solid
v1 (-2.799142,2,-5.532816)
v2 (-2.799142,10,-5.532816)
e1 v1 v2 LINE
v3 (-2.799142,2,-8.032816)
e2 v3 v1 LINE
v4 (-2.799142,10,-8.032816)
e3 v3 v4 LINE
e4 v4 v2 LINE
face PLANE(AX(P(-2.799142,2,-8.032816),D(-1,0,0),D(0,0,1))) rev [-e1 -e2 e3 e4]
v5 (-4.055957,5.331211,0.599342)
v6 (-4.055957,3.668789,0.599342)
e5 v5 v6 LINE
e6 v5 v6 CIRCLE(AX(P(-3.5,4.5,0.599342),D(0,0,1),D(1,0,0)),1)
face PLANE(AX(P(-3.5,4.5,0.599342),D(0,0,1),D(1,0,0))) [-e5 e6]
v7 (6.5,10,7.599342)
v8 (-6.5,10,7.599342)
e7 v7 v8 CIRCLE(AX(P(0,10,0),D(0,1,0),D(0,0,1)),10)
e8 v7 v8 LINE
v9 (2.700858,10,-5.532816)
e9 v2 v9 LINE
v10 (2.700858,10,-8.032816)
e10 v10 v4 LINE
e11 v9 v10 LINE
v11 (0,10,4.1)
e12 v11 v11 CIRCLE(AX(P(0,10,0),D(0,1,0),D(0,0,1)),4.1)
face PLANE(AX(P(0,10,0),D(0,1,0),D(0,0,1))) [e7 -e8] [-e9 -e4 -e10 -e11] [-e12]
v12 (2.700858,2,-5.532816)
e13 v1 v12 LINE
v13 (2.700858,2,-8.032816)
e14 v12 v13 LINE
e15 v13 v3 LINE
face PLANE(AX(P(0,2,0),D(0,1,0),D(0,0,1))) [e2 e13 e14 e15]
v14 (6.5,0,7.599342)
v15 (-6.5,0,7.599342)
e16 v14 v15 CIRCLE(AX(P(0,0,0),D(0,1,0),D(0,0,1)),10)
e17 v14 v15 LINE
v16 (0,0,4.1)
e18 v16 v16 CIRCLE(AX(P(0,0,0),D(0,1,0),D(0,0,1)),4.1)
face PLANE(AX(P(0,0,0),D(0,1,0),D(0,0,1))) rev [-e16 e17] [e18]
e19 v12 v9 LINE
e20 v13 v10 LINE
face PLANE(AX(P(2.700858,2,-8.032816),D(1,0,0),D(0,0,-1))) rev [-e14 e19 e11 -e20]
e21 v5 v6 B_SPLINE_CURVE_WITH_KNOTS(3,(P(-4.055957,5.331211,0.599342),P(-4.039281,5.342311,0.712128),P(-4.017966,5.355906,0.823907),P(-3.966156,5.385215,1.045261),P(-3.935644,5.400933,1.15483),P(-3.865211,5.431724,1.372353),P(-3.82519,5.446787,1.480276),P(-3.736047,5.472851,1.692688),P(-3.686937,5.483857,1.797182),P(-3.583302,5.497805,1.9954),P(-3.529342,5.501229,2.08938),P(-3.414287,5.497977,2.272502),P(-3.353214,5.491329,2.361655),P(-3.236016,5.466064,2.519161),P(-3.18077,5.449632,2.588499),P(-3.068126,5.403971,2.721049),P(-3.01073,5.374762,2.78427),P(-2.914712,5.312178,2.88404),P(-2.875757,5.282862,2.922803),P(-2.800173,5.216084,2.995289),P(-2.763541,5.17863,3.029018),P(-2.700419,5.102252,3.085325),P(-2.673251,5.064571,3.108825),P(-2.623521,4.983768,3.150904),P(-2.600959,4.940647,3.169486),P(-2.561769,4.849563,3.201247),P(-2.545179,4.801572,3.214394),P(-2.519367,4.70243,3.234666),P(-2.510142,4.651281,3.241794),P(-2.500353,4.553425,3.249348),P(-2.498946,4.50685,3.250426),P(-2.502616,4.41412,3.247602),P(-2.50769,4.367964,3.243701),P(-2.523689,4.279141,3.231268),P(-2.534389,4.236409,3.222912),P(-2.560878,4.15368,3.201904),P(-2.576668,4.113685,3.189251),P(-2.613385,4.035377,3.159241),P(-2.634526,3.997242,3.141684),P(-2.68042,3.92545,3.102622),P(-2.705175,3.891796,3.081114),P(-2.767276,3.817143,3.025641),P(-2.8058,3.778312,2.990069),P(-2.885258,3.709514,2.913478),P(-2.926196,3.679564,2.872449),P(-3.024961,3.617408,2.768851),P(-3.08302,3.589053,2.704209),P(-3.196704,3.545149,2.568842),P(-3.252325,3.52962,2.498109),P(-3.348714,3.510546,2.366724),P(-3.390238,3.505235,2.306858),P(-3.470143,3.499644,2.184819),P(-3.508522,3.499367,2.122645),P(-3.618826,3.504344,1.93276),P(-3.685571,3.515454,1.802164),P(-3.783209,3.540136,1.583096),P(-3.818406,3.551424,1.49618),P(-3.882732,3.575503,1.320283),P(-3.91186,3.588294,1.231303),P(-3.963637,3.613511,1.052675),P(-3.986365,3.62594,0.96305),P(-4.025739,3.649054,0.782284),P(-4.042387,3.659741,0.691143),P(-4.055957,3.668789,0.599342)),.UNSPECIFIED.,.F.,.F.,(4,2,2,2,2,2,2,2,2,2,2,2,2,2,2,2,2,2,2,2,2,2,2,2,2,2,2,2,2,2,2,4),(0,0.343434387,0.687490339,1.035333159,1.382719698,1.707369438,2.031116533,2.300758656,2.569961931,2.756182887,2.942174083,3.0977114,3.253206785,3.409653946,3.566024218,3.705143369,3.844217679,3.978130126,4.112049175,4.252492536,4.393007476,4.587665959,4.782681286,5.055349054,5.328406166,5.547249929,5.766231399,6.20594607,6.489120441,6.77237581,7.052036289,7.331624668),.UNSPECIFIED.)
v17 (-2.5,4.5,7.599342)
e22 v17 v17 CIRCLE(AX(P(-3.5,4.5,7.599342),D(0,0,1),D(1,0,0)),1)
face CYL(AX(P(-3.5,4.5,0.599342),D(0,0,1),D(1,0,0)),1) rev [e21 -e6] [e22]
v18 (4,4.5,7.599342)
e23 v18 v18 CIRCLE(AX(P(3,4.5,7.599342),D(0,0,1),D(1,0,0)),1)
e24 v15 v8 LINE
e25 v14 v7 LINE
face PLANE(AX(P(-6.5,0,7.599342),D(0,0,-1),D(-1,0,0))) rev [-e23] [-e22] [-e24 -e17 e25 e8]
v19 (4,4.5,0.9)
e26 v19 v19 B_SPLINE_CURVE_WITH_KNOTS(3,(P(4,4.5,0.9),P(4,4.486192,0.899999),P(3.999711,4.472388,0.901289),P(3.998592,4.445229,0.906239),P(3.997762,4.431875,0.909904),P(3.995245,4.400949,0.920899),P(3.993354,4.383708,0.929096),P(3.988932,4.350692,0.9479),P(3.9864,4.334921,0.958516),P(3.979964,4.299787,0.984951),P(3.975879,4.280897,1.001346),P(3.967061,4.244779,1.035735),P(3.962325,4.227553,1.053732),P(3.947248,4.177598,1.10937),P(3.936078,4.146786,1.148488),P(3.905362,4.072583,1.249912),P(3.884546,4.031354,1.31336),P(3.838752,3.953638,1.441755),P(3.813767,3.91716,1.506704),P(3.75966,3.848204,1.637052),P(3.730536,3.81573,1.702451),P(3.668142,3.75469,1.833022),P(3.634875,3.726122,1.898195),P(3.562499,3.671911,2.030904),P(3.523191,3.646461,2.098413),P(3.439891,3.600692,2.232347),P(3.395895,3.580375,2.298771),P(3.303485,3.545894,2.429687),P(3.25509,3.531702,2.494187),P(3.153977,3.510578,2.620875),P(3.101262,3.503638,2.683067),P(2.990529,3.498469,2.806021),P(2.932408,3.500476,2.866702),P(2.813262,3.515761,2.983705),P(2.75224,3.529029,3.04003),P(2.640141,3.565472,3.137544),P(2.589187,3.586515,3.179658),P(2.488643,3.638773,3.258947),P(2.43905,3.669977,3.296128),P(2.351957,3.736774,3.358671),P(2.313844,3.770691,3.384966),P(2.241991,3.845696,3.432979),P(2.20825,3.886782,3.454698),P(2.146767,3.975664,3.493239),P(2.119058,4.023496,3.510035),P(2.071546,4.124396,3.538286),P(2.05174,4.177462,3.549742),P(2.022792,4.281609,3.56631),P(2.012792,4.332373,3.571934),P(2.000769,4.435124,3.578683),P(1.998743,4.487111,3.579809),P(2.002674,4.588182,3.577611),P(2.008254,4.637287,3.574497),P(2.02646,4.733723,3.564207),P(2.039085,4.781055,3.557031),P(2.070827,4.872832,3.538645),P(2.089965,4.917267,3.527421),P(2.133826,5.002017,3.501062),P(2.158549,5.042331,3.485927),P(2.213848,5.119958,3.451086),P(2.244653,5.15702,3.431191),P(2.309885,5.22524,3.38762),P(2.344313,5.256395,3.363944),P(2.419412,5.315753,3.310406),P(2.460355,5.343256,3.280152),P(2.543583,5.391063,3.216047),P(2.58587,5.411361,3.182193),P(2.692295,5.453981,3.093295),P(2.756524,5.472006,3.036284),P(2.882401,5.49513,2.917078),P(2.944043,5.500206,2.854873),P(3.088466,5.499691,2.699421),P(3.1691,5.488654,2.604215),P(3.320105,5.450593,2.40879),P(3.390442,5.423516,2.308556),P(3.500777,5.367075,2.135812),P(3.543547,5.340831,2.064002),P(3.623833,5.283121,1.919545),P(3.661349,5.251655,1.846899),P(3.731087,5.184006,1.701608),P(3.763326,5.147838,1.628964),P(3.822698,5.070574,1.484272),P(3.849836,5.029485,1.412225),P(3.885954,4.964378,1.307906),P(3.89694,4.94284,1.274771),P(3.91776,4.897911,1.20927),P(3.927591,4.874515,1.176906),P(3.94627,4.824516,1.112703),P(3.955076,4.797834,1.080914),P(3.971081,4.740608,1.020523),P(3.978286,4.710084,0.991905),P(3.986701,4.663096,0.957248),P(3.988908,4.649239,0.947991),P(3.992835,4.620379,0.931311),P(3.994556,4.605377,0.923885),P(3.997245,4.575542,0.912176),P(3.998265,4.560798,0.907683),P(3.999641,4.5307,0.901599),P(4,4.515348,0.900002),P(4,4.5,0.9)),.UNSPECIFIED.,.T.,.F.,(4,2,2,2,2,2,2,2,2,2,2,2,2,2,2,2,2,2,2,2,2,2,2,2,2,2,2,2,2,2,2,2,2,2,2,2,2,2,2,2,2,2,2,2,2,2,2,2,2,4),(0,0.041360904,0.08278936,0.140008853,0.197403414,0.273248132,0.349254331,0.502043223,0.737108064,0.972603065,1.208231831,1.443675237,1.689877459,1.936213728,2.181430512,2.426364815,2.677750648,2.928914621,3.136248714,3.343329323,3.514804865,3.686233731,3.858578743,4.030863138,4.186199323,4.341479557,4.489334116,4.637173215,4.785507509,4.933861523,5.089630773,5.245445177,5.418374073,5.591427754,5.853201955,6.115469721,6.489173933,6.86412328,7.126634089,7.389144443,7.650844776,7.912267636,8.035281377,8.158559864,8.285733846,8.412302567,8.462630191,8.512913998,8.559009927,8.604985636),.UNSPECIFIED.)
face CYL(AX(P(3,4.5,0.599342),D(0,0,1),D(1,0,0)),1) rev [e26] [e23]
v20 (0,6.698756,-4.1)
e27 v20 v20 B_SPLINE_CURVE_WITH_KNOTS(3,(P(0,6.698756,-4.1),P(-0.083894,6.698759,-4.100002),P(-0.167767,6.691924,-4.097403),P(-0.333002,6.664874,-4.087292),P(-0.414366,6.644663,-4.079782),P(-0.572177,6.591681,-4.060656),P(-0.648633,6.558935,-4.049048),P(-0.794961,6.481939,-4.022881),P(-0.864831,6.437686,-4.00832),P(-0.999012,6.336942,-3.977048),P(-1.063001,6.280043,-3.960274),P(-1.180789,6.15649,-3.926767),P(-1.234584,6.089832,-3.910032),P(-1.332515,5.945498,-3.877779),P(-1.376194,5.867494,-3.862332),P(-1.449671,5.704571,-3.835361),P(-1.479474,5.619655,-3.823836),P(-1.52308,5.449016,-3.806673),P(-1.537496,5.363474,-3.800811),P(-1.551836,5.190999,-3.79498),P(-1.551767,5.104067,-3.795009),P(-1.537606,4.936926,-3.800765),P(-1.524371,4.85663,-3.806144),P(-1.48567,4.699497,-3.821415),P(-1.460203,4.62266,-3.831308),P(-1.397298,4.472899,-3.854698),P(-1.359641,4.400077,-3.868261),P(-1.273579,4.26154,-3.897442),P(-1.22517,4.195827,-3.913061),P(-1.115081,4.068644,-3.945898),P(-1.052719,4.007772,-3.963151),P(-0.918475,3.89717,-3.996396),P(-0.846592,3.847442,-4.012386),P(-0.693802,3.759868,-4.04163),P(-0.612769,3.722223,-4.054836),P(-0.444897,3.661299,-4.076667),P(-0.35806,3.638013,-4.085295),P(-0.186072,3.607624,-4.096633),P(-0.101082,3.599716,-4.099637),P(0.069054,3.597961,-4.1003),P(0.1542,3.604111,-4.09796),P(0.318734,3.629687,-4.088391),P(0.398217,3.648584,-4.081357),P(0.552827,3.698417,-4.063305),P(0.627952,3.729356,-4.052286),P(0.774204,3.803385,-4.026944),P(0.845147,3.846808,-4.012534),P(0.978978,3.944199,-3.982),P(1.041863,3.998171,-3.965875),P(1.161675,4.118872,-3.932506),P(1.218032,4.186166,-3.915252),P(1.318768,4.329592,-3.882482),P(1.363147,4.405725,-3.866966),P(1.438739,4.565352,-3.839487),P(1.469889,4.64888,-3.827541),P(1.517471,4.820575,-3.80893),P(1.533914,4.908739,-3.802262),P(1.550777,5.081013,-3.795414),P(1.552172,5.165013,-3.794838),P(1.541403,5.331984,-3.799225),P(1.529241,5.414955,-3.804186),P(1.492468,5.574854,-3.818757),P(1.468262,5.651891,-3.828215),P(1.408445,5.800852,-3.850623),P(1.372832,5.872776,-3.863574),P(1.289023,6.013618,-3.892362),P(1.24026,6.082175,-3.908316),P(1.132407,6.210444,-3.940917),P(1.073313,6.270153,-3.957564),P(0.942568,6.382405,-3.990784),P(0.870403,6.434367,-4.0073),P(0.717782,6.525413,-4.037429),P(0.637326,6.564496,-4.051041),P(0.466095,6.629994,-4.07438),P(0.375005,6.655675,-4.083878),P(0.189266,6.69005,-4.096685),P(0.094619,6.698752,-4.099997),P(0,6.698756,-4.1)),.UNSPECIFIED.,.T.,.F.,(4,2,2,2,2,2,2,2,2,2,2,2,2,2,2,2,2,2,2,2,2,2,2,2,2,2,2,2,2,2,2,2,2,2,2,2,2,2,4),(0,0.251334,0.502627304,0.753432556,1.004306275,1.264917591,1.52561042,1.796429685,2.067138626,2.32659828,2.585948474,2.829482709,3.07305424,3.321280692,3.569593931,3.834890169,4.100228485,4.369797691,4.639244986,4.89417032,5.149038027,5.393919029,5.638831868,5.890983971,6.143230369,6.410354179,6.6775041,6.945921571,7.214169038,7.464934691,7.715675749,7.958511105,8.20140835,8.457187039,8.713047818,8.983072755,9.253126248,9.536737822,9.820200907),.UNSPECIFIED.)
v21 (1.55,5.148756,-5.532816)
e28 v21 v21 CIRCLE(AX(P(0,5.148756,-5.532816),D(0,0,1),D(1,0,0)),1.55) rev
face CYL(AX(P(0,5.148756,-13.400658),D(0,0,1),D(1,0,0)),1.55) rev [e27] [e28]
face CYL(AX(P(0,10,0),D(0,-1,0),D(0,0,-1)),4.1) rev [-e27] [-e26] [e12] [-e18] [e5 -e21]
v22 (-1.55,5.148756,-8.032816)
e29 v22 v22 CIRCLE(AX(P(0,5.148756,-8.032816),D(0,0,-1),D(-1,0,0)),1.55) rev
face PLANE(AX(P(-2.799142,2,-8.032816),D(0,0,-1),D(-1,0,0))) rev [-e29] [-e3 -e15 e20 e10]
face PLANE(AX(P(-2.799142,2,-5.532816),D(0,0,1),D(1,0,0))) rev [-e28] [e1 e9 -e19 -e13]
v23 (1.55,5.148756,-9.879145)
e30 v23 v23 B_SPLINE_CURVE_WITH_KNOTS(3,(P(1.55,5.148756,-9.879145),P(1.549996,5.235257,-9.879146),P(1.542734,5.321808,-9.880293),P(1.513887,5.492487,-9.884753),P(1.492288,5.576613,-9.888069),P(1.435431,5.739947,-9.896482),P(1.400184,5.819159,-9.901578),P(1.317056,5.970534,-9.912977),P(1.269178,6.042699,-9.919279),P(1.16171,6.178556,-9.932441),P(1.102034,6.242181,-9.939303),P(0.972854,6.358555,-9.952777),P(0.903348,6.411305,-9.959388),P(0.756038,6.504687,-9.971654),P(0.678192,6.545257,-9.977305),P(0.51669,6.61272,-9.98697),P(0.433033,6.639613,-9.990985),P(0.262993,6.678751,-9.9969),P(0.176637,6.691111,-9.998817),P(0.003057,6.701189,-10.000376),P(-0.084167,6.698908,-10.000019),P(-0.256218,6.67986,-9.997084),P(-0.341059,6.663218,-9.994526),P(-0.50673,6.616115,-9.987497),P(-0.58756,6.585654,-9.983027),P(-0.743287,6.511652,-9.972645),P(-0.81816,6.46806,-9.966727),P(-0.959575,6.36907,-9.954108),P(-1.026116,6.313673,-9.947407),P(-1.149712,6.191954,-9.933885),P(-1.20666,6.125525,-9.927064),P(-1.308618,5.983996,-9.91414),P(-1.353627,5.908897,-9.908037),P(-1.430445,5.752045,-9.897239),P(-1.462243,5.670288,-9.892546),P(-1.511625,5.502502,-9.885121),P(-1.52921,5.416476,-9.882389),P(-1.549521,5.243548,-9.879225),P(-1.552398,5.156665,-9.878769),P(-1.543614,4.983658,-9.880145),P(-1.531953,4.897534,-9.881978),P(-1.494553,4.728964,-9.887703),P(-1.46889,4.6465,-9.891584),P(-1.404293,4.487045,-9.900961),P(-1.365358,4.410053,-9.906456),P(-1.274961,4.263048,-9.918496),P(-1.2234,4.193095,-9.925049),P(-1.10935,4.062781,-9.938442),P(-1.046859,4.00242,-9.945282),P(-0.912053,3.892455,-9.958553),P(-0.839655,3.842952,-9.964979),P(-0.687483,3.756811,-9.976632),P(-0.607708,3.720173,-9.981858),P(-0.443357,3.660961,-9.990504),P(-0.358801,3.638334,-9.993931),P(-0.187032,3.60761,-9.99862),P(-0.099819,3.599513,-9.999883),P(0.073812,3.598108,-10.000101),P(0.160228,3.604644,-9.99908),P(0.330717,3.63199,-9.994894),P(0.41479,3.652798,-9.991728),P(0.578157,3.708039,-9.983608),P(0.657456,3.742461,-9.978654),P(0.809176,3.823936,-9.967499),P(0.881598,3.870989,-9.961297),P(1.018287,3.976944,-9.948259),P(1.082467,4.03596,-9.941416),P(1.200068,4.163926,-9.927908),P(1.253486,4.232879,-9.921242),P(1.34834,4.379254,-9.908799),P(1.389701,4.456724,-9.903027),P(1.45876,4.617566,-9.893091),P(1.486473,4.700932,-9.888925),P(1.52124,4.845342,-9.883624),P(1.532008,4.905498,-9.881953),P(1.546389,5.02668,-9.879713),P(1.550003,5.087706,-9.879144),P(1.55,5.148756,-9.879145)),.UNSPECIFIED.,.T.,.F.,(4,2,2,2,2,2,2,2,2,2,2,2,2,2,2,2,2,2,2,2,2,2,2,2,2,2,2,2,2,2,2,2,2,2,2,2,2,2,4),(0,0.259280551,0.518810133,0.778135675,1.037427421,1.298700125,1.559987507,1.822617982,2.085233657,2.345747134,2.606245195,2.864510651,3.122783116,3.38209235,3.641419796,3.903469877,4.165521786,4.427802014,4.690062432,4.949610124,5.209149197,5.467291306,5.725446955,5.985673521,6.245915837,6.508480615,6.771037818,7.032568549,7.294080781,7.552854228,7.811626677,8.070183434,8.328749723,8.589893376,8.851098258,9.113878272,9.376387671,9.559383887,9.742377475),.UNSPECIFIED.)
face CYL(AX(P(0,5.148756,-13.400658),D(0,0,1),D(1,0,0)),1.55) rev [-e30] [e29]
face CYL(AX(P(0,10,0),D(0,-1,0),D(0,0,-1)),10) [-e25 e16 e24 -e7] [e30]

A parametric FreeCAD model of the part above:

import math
import FreeCAD as App
import Part
import Sketcher
Q = App.Units.Quantity


def add_polygon(sketch, points):
    """Adds a closed chain of lines whose ends are joined by coincident constraints."""
    first, n = sketch.GeometryCount, len(points)
    for a, b in zip(points, points[1:] + points[:1]):
        sketch.addGeometry(Part.LineSegment(App.Vector(*a, 0), App.Vector(*b, 0)), False)
    for i in range(n):
        sketch.addConstraint(Sketcher.Constraint("Coincident", first + i, 2, first + (i + 1) % n, 1))

doc = App.newDocument("Part")
body = doc.addObject("PartDesign::Body", "Body")

# Sketch on XZ plane
sketch1 = body.newObject("Sketcher::SketchObject", "Sketch")
sketch1.AttachmentSupport = (doc.getObject("XZ_Plane"), [""])
sketch1.MapMode = "FlatFace"
sketch1.addGeometry([
    Part.Circle(App.Vector(0, 0, 0), App.Vector(0, 0, 1), 10),
    Part.Circle(App.Vector(0, 0, 0), App.Vector(0, 0, 1), 4.1),
], False)
sketch1.addConstraint([
    Sketcher.Constraint("Coincident", 0, 3, -1, 1),
    Sketcher.Constraint("Coincident", 1, 3, -1, 1),
    Sketcher.Constraint("Diameter", 0, Q("20 mm")),
    Sketcher.Constraint("Diameter", 1, Q("8.2 mm")),
])
pad1 = body.newObject("PartDesign::Pad", "Pad")
pad1.Profile = sketch1
pad1.Length = 10
pad1.Reversed = True

# Sketch on XZ plane
sketch2 = body.newObject("Sketcher::SketchObject", "Sketch001")
sketch2.AttachmentSupport = (doc.getObject("XZ_Plane"), [""])
sketch2.MapMode = "FlatFace"
sketch2.AttachmentOffset = App.Placement(App.Vector(0, 0, -10), App.Rotation())
sketch2.addGeometry([
    Part.LineSegment(App.Vector(6, 8, 0), App.Vector(-6, 8, 0)),
    Part.ArcOfCircle(Part.Circle(App.Vector(0, 0, 0), App.Vector(0, 0, 1), 10), math.radians(49), math.radians(131)),
], False)
sketch2.addConstraint([
    Sketcher.Constraint("Coincident", 0, 1, 1, 1),
    Sketcher.Constraint("Coincident", 1, 2, 0, 2),
    Sketcher.Constraint("Horizontal", 0),
    Sketcher.Constraint("Coincident", 1, 3, -1, 1),
    Sketcher.Constraint("Radius", 1, Q("10 mm")),
    Sketcher.Constraint("DistanceX", 0, 2, 0, 1, Q("13 mm")),
])
pocket1 = body.newObject("PartDesign::Pocket", "Pocket")
pocket1.Profile = sketch2
pocket1.Type = "ThroughAll"
pocket1.Reversed = True

# Sketch on XY plane
sketch3 = body.newObject("Sketcher::SketchObject", "Sketch002")
sketch3.AttachmentSupport = (doc.getObject("XY_Plane"), [""])
sketch3.MapMode = "FlatFace"
sketch3.AttachmentOffset = App.Placement(App.Vector(0, 0, 7.599342), App.Rotation())
sketch3.addGeometry([
    Part.Circle(App.Vector(-3.5, 4.5, 0), App.Vector(0, 0, 1), 1),
    Part.Circle(App.Vector(3, 4.5, 0), App.Vector(0, 0, 1), 1),
], False)
sketch3.addConstraint([
    Sketcher.Constraint("Equal", 0, 1),
    Sketcher.Constraint("Horizontal", 0, 3, 1, 3),
    Sketcher.Constraint("Diameter", 0, Q("2 mm")),
    Sketcher.Constraint("DistanceX", -1, 1, 1, 3, Q("3 mm")),
    Sketcher.Constraint("DistanceX", 0, 3, -1, 1, Q("3.5 mm")),
    Sketcher.Constraint("DistanceY", -1, 1, 0, 3, Q("4.5 mm")),
])
pocket2 = body.newObject("PartDesign::Pocket", "Pocket001")
pocket2.Profile = sketch3
pocket2.Length = 7

# Sketch on XY plane
sketch4 = body.newObject("Sketcher::SketchObject", "Sketch003")
sketch4.AttachmentSupport = (doc.getObject("XY_Plane"), [""])
sketch4.MapMode = "FlatFace"
sketch4.AttachmentOffset = App.Placement(App.Vector(0, 0, -2.400658), App.Rotation())
sketch4.addGeometry(Part.Circle(App.Vector(0, 5.1, 0), App.Vector(0, 0, 1), 1.6), False)
sketch4.addConstraint([
    Sketcher.Constraint("PointOnObject", 0, 3, -2),
    Sketcher.Constraint("Diameter", 0, Q("3.1 mm")),
    Sketcher.Constraint("DistanceY", -1, 1, 0, 3, Q("5.148756 mm")),
])
pocket3 = body.newObject("PartDesign::Pocket", "Pocket002")
pocket3.Profile = sketch4
pocket3.Length = 11

# Sketch on XZ plane
sketch5 = body.newObject("Sketcher::SketchObject", "Sketch004")
sketch5.AttachmentSupport = (doc.getObject("XZ_Plane"), [""])
sketch5.MapMode = "FlatFace"
sketch5.AttachmentOffset = App.Placement(App.Vector(0, 0, -10), App.Rotation())
add_polygon(sketch5, [(-2.8, -8), (-2.8, -5.5), (2.7, -5.5), (2.7, -8)])  # lines 0-3
sketch5.addConstraint([
    Sketcher.Constraint("Vertical", 0),
    Sketcher.Constraint("Horizontal", 1),
    Sketcher.Constraint("Vertical", 2),
    Sketcher.Constraint("Horizontal", 3),
    Sketcher.Constraint("DistanceX", 1, 1, 1, 2, Q("5.5 mm")),
    Sketcher.Constraint("DistanceY", 0, 1, 0, 2, Q("2.5 mm")),
    Sketcher.Constraint("DistanceX", 0, 2, -1, 1, Q("2.799142 mm")),
    Sketcher.Constraint("DistanceY", 0, 2, -1, 1, Q("5.532816 mm")),
])
pocket4 = body.newObject("PartDesign::Pocket", "Pocket003")
pocket4.Profile = sketch5
pocket4.Length = 8
pocket4.Reversed = True

doc.recompute()
